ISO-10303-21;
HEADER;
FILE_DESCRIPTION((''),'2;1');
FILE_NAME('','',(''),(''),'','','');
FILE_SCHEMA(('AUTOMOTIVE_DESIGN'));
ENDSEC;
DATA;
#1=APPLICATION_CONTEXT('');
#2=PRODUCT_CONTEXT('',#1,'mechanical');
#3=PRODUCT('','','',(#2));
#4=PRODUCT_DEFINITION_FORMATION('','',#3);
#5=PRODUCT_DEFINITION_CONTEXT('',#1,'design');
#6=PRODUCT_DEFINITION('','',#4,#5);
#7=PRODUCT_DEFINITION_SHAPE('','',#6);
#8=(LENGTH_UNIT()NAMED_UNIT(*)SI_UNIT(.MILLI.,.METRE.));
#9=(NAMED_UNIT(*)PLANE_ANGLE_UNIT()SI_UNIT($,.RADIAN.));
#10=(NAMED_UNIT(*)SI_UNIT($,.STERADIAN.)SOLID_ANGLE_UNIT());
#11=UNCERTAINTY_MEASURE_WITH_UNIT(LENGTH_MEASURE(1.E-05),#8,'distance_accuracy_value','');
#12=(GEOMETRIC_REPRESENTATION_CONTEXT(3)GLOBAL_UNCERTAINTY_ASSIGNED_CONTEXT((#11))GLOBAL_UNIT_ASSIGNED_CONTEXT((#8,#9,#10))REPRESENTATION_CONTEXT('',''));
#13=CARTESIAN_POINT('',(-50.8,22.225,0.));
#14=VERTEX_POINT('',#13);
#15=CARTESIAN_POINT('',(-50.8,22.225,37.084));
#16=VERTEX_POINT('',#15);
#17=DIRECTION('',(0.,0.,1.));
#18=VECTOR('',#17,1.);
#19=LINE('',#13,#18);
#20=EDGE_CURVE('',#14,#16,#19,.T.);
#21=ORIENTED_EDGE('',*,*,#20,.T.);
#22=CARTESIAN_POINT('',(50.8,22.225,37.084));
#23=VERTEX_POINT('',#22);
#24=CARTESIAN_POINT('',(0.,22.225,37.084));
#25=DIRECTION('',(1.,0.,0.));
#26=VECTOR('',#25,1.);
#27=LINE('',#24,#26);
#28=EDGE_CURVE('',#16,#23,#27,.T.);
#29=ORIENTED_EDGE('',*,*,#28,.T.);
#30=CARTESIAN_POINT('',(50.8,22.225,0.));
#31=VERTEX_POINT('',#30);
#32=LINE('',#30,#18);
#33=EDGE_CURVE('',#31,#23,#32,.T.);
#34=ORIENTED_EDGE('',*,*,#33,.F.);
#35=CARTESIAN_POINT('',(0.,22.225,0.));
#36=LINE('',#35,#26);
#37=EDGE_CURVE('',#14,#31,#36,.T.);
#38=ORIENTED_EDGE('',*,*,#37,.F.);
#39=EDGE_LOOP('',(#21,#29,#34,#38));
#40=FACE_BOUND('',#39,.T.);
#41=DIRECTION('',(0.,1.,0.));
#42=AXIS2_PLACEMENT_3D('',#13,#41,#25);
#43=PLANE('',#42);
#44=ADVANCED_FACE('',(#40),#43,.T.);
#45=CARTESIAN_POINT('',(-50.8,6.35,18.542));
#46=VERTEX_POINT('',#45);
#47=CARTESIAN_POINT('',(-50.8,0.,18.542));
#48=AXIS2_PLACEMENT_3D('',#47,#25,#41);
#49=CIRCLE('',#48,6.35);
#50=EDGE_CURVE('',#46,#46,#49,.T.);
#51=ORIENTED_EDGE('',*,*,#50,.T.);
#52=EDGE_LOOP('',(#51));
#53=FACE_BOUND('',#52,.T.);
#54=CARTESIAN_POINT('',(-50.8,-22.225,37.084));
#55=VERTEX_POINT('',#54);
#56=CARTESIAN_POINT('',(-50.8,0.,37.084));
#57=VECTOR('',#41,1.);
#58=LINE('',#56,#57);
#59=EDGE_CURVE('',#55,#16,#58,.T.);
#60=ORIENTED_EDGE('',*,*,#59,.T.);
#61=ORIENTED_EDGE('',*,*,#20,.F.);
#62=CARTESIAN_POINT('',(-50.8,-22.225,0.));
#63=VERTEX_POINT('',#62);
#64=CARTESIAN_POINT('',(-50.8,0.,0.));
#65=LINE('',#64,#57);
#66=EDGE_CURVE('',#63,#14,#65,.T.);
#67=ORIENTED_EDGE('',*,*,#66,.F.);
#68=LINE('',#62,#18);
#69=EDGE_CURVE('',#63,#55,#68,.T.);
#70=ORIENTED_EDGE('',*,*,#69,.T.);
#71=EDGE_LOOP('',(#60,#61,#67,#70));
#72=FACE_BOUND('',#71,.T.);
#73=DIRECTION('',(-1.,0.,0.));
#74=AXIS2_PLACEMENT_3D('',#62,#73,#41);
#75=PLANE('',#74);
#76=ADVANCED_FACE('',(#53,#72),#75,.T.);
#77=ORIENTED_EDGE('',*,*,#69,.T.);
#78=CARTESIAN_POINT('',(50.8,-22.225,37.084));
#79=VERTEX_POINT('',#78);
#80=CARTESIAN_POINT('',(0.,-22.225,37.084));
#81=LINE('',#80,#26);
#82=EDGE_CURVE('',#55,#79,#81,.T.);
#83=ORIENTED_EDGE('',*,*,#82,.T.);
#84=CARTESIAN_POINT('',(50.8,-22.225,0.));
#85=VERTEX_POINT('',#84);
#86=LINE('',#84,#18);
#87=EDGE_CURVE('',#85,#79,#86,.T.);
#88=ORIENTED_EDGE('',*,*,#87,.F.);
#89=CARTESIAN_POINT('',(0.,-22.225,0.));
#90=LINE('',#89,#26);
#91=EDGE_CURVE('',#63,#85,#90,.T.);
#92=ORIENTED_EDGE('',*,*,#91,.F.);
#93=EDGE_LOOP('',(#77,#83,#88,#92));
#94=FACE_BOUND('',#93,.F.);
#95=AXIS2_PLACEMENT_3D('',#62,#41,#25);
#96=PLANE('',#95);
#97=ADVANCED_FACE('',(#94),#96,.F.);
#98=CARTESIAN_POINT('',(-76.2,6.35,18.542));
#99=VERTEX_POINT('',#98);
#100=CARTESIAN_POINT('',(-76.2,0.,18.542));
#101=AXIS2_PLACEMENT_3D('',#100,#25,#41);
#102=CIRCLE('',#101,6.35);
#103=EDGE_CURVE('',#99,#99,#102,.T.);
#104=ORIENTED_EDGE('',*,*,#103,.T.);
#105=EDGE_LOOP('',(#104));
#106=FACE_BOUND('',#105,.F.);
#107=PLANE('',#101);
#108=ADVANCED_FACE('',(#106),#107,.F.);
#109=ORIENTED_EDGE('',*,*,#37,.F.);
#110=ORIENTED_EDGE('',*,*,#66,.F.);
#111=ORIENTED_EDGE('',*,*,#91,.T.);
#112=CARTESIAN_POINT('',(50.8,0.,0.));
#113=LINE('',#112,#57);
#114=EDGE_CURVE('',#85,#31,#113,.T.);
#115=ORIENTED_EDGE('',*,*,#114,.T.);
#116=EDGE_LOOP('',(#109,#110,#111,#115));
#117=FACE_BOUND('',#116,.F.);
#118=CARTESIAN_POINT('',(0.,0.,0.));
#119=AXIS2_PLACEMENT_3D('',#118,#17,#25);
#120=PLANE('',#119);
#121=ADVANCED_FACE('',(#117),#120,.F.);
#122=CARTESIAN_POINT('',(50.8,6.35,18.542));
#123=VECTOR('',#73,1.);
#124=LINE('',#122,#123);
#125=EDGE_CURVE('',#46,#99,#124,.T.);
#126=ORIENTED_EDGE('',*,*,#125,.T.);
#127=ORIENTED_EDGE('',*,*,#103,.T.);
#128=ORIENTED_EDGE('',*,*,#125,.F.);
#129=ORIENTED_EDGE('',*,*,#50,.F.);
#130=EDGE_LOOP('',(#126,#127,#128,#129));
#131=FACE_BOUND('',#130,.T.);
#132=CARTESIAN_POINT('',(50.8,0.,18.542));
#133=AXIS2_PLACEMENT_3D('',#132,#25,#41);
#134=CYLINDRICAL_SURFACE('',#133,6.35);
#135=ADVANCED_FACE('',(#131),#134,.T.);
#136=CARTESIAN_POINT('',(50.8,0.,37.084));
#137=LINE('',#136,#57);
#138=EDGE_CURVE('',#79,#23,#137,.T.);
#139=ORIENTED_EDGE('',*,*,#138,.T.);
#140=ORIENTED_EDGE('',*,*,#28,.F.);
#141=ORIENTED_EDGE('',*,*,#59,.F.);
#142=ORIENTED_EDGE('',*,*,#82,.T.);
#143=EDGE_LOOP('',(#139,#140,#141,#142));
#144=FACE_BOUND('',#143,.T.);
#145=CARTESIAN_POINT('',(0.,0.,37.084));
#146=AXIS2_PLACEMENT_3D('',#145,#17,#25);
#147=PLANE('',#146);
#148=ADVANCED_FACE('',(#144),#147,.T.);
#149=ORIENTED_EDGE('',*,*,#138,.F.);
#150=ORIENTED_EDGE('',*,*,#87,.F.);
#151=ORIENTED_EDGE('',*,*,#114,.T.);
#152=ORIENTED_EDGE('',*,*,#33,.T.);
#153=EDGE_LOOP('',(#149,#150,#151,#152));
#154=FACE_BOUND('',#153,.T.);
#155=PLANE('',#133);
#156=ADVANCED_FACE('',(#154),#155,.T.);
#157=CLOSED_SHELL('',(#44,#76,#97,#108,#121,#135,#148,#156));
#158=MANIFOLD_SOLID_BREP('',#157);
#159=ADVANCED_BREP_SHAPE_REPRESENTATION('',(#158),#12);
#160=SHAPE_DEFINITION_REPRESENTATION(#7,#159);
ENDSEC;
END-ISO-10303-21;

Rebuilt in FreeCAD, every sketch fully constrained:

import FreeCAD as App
import Part
import Sketcher
Q = App.Units.Quantity


def add_polygon(sketch, points):
    """Adds a closed chain of lines whose ends are joined by coincident constraints."""
    first, n = sketch.GeometryCount, len(points)
    for a, b in zip(points, points[1:] + points[:1]):
        sketch.addGeometry(Part.LineSegment(App.Vector(*a, 0), App.Vector(*b, 0)), False)
    for i in range(n):
        sketch.addConstraint(Sketcher.Constraint("Coincident", first + i, 2, first + (i + 1) % n, 1))

doc = App.newDocument("Part")
body = doc.addObject("PartDesign::Body", "Body")

# Sketch on XY plane
sketch1 = doc.addObject("Sketcher::SketchObject", "Sketch")
body.addObject(sketch1)
sketch1.AttachmentSupport = (doc.XY_Plane, [""])
sketch1.MapMode = "FlatFace"
add_polygon(sketch1, [(-51, 22), (-51, -22), (51, -22), (51, 22)])  # lines 0-3
sketch1.addConstraint(Sketcher.Constraint("Vertical", 0))
sketch1.addConstraint(Sketcher.Constraint("Horizontal", 1))
sketch1.addConstraint(Sketcher.Constraint("Vertical", 2))
sketch1.addConstraint(Sketcher.Constraint("Horizontal", 3))
sketch1.addConstraint(Sketcher.Constraint("Symmetric", 0, 2, 2, 2, -1, 1))
sketch1.addConstraint(Sketcher.Constraint("DistanceX", 1, 1, 1, 2, Q("4 in")))
sketch1.addConstraint(Sketcher.Constraint("DistanceY", 0, 2, 0, 1, Q("1.75 in")))
pad1 = doc.addObject("PartDesign::Pad", "Pad")
body.addObject(pad1)
pad1.Profile = sketch1
pad1.Length = Q("1.46 in")

# Sketch on YZ plane
sketch2 = doc.addObject("Sketcher::SketchObject", "Sketch001")
body.addObject(sketch2)
sketch2.AttachmentSupport = (doc.YZ_Plane, [""])
sketch2.MapMode = "FlatFace"
sketch2.AttachmentOffset = App.Placement(App.Vector(0, 0, 2 * 25.4), App.Rotation())
sketch2.addGeometry(Part.Circle(App.Vector(0, 19, 0), App.Vector(0, 0, 1), 6), False)
sketch2.addConstraint(Sketcher.Constraint("PointOnObject", 0, 3, -2))
sketch2.addConstraint(Sketcher.Constraint("Diameter", 0, Q("0.5 in")))
sketch2.addConstraint(Sketcher.Constraint("DistanceY", -1, 1, 0, 3, Q("0.73 in")))
pad2 = doc.addObject("PartDesign::Pad", "Pad001")
body.addObject(pad2)
pad2.Profile = sketch2
pad2.Length = Q("5 in")
pad2.Reversed = True

doc.recompute()
